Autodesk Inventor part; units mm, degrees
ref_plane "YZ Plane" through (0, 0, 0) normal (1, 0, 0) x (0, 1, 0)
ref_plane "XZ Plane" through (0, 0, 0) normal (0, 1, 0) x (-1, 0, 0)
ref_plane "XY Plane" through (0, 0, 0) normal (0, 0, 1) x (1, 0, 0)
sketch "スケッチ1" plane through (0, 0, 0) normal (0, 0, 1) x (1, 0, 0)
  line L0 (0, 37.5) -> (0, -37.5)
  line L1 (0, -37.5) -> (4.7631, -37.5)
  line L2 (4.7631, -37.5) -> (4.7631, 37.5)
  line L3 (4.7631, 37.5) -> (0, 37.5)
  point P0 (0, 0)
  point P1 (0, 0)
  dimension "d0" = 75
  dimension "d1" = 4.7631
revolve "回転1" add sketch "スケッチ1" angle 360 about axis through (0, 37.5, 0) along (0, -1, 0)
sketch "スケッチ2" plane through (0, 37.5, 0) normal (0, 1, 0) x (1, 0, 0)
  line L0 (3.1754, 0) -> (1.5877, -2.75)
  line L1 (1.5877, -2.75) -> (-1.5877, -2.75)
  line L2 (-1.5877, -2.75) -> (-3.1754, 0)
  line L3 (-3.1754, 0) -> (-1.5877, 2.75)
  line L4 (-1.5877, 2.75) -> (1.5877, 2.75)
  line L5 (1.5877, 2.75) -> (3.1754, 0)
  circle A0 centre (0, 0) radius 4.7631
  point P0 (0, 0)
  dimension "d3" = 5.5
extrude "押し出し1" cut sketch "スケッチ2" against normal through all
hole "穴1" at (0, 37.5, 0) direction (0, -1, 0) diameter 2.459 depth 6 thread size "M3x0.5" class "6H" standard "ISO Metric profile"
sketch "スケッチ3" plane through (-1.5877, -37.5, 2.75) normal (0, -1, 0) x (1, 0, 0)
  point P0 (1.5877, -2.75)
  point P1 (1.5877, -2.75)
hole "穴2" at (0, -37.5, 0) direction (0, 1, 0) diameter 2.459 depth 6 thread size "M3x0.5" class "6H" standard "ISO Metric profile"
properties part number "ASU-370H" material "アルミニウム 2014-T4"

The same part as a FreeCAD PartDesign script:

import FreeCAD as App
import Part
import Sketcher
Q = App.Units.Quantity

doc = App.newDocument("Part")
body = doc.addObject("PartDesign::Body", "Body")

# Sketch on XY plane
sketch1 = doc.addObject("Sketcher::SketchObject", "Sketch")
body.addObject(sketch1)
sketch1.AttachmentSupport = (doc.XY_Plane, [""])
sketch1.MapMode = "FlatFace"
sketch1.addGeometry(Part.LineSegment(App.Vector(4.8, 37.5, 0), App.Vector(0, 37.5, 0)), False)
sketch1.addGeometry(Part.LineSegment(App.Vector(0, 37.5, 0), App.Vector(0, -37.5, 0)), False)
sketch1.addGeometry(Part.LineSegment(App.Vector(0, -37.5, 0), App.Vector(4.8, -37.5, 0)), False)
sketch1.addGeometry(Part.LineSegment(App.Vector(4.8, -37.5, 0), App.Vector(4.8, 37.5, 0)), False)
sketch1.addConstraint(Sketcher.Constraint("Coincident", 0, 2, 1, 1))
sketch1.addConstraint(Sketcher.Constraint("Coincident", 1, 2, 2, 1))
sketch1.addConstraint(Sketcher.Constraint("Coincident", 2, 2, 3, 1))
sketch1.addConstraint(Sketcher.Constraint("Coincident", 3, 2, 0, 1))
sketch1.addConstraint(Sketcher.Constraint("Horizontal", 0))
sketch1.addConstraint(Sketcher.Constraint("Vertical", 1))
sketch1.addConstraint(Sketcher.Constraint("Horizontal", 2))
sketch1.addConstraint(Sketcher.Constraint("Vertical", 3))
sketch1.addConstraint(Sketcher.Constraint("Symmetric", 0, 2, 1, 2, -1, 1))
sketch1.addConstraint(Sketcher.Constraint("DistanceY", 1, 2, 1, 1, 75.0))
sketch1.addConstraint(Sketcher.Constraint("DistanceX", 0, 2, 0, 1, 4.763))
revolution = doc.addObject("PartDesign::Revolution", "Revolution")
body.addObject(revolution)
revolution.Profile = sketch1
revolution.ReferenceAxis = (sketch1, ["V_Axis"])
revolution.Angle = 360

# Sketch on XZ plane
sketch2 = doc.addObject("Sketcher::SketchObject", "Sketch001")
body.addObject(sketch2)
sketch2.AttachmentSupport = (doc.XZ_Plane, [""])
sketch2.MapMode = "FlatFace"
sketch2.AttachmentOffset = App.Placement(App.Vector(0, 0, -37.5), App.Rotation())
sketch2.addGeometry(Part.Circle(App.Vector(0, 0, 0), App.Vector(0, 0, 1), 4.8), False)
sketch2.addGeometry(Part.LineSegment(App.Vector(1.6, -2.8, 0), App.Vector(3.2, 0, 0)), False)
sketch2.addGeometry(Part.LineSegment(App.Vector(3.2, 0, 0), App.Vector(1.6, 2.8, 0)), False)
sketch2.addGeometry(Part.LineSegment(App.Vector(1.6, 2.8, 0), App.Vector(-1.6, 2.8, 0)), False)
sketch2.addGeometry(Part.LineSegment(App.Vector(-1.6, 2.8, 0), App.Vector(-3.2, 0, 0)), False)
sketch2.addGeometry(Part.LineSegment(App.Vector(-3.2, 0, 0), App.Vector(-1.6, -2.8, 0)), False)
sketch2.addGeometry(Part.LineSegment(App.Vector(-1.6, -2.8, 0), App.Vector(1.6, -2.8, 0)), False)
sketch2.addConstraint(Sketcher.Constraint("Coincident", 1, 2, 2, 1))
sketch2.addConstraint(Sketcher.Constraint("Coincident", 2, 2, 3, 1))
sketch2.addConstraint(Sketcher.Constraint("Coincident", 3, 2, 4, 1))
sketch2.addConstraint(Sketcher.Constraint("Coincident", 4, 2, 5, 1))
sketch2.addConstraint(Sketcher.Constraint("Coincident", 5, 2, 6, 1))
sketch2.addConstraint(Sketcher.Constraint("Coincident", 6, 2, 1, 1))
sketch2.addConstraint(Sketcher.Constraint("Horizontal", 3))
sketch2.addConstraint(Sketcher.Constraint("Horizontal", 6))
sketch2.addConstraint(Sketcher.Constraint("Coincident", 0, 3, -1, 1))
sketch2.addConstraint(Sketcher.Constraint("Symmetric", 1, 2, 4, 2, -1, 1))
sketch2.addConstraint(Sketcher.Constraint("Symmetric", 2, 2, 5, 2, -1, 1))
sketch2.addConstraint(Sketcher.Constraint("PointOnObject", 1, 2, -1))
sketch2.addConstraint(Sketcher.Constraint("Parallel", 1, 4))
sketch2.addConstraint(Sketcher.Constraint("Vertical", 3, 2, 5, 2))
sketch2.addConstraint(Sketcher.Constraint("DistanceY", 5, 2, 3, 2, 5.5))
sketch2.addConstraint(Sketcher.Constraint("Angle", 1, Q("60.0002 deg")))
sketch2.addConstraint(Sketcher.Constraint("Diameter", 0, 9.5262))
sketch2.addConstraint(Sketcher.Constraint("DistanceX", 3, 2, 3, 1, 3.1754))
pocket1 = doc.addObject("PartDesign::Pocket", "Pocket")
body.addObject(pocket1)
pocket1.Profile = sketch2
pocket1.Type = "ThroughAll"
pocket1.Reversed = True

# Sketch on XZ plane
sketch3 = doc.addObject("Sketcher::SketchObject", "Sketch002")
body.addObject(sketch3)
sketch3.AttachmentSupport = (doc.XZ_Plane, [""])
sketch3.MapMode = "FlatFace"
sketch3.AttachmentOffset = App.Placement(App.Vector(0, 0, -37.5), App.Rotation())
sketch3.addGeometry(Part.Circle(App.Vector(0, 0, 0), App.Vector(0, 0, 1), 1.2), False)
sketch3.addConstraint(Sketcher.Constraint("Coincident", 0, 3, -1, 1))
sketch3.addConstraint(Sketcher.Constraint("Diameter", 0, 2.459))
doc.recompute()
hole = doc.addObject("PartDesign::Hole", "Hole")
body.addObject(hole)
hole.Profile = sketch3
hole.ThreadType = "None"
hole.Diameter = 2.459
hole.DepthType = "Dimension"
hole.Depth = 6
hole.DrillPoint = "Flat"
hole.Reversed = True

# Sketch on XZ plane
sketch4 = doc.addObject("Sketcher::SketchObject", "Sketch003")
body.addObject(sketch4)
sketch4.AttachmentSupport = (doc.XZ_Plane, [""])
sketch4.MapMode = "FlatFace"
sketch4.AttachmentOffset = App.Placement(App.Vector(0, 0, 37.5), App.Rotation())
sketch4.addGeometry(Part.Circle(App.Vector(0, 0, 0), App.Vector(0, 0, 1), 1.2), False)
sketch4.addConstraint(Sketcher.Constraint("Coincident", 0, 3, -1, 1))
sketch4.addConstraint(Sketcher.Constraint("Diameter", 0, 2.459))
doc.recompute()
hole2 = doc.addObject("PartDesign::Hole", "Hole001")
body.addObject(hole2)
hole2.Profile = sketch4
hole2.ThreadType = "None"
hole2.Diameter = 2.459
hole2.DepthType = "Dimension"
hole2.Depth = 6
hole2.DrillPoint = "Flat"

doc.recompute()
